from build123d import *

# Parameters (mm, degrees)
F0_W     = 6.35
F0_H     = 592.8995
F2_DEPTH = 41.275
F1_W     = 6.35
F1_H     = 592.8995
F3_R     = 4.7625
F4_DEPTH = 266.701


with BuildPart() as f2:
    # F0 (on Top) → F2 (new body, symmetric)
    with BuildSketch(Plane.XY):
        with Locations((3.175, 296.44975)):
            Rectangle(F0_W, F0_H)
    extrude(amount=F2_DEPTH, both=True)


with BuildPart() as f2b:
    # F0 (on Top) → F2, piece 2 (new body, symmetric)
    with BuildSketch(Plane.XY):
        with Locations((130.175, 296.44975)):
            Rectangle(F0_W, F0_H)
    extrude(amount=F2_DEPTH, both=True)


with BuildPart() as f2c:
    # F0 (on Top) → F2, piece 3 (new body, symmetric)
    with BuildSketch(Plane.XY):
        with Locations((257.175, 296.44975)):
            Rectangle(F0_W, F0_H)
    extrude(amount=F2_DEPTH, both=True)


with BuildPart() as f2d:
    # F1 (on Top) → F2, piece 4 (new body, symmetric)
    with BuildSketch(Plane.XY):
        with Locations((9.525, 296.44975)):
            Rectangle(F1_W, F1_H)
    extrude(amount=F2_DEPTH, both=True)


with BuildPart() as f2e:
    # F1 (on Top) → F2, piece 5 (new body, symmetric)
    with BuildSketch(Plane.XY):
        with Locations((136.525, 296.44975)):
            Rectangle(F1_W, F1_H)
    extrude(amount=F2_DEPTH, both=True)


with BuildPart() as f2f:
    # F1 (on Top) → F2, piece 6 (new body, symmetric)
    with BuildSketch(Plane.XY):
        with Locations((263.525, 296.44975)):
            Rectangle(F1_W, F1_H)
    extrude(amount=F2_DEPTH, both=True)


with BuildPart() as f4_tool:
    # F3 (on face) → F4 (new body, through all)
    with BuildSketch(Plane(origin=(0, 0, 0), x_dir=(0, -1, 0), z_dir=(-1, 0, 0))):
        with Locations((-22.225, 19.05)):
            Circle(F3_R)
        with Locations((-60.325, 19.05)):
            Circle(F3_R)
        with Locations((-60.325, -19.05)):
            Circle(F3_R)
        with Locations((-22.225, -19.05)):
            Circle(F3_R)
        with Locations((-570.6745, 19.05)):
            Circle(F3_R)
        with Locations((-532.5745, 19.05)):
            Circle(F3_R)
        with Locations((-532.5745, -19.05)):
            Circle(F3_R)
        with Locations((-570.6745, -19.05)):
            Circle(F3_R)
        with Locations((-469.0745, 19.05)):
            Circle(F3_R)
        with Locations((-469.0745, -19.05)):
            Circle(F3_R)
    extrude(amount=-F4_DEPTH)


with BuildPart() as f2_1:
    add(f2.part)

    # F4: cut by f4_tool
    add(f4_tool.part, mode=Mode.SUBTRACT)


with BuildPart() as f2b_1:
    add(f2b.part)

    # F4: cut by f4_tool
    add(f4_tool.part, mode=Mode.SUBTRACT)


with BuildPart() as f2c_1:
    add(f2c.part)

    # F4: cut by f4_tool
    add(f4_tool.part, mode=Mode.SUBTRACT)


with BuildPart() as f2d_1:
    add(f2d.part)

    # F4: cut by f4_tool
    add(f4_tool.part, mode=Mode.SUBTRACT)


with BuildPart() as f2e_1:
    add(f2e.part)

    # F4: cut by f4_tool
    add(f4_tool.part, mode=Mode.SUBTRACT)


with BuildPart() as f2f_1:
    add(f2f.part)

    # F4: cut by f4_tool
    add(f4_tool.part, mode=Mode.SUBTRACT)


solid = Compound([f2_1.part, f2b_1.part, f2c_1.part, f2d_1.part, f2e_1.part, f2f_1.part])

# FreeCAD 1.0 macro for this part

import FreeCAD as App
import Part
import Sketcher
from FreeCAD import Vector
Q = App.Units.Quantity


def add_polygon(sketch, points):
    """Adds a closed chain of lines whose ends are joined by coincident constraints."""
    first, n = sketch.GeometryCount, len(points)
    for a, b in zip(points, points[1:] + points[:1]):
        sketch.addGeometry(Part.LineSegment(App.Vector(*a, 0), App.Vector(*b, 0)), False)
    for i in range(n):
        sketch.addConstraint(Sketcher.Constraint("Coincident", first + i, 2, first + (i + 1) % n, 1))

doc = App.newDocument("Part")
body = doc.addObject("PartDesign::Body", "Body")

sketch1 = body.newObject("Sketcher::SketchObject", "Sketch")
sketch1.AttachmentSupport = (doc.getObject("XY_Plane"), [""])
sketch1.MapMode = "FlatFace"
add_polygon(sketch1, [(0, 593), (0, 0), (6, 0), (6, 593)])
sketch1.addConstraint([
    Sketcher.Constraint("Vertical", 0),
    Sketcher.Constraint("Horizontal", 1),
    Sketcher.Constraint("Vertical", 2),
    Sketcher.Constraint("Horizontal", 3),
    Sketcher.Constraint("Coincident", 0, 2, -1, 1),
    Sketcher.Constraint("DistanceX", 1, 1, 1, 2, Q("0.25 in")),
    Sketcher.Constraint("DistanceY", 0, 2, 0, 1, Q("23.3425 in")),
])
pad1 = body.newObject("PartDesign::Pad", "Pad")
pad1.Profile = sketch1
pad1.Length = Q("3.25 in")
pad1.Midplane = True
body2 = doc.addObject("PartDesign::Body", "Body001")

sketch2 = body2.newObject("Sketcher::SketchObject", "Sketch001")
sketch2.AttachmentSupport = (doc.getObject("XY_Plane001"), [""])
sketch2.MapMode = "FlatFace"
add_polygon(sketch2, [(127, 593), (127, 0), (133, 0), (133, 593)])
sketch2.addConstraint([
    Sketcher.Constraint("Vertical", 0),
    Sketcher.Constraint("Horizontal", 1),
    Sketcher.Constraint("Vertical", 2),
    Sketcher.Constraint("Horizontal", 3),
    Sketcher.Constraint("PointOnObject", 0, 2, -1),
    Sketcher.Constraint("DistanceX", -1, 1, 0, 2, Q("5 in")),
    Sketcher.Constraint("DistanceX", 1, 1, 1, 2, Q("0.25 in")),
    Sketcher.Constraint("DistanceY", 0, 2, 0, 1, Q("23.3425 in")),
])
pad2 = body2.newObject("PartDesign::Pad", "Pad001")
pad2.Profile = sketch2
pad2.Length = Q("3.25 in")
pad2.Midplane = True
body3 = doc.addObject("PartDesign::Body", "Body002")

sketch3 = body3.newObject("Sketcher::SketchObject", "Sketch002")
sketch3.AttachmentSupport = (doc.getObject("XY_Plane002"), [""])
sketch3.MapMode = "FlatFace"
add_polygon(sketch3, [(254, 593), (254, 0), (260, 0), (260, 593)])
sketch3.addConstraint([
    Sketcher.Constraint("Vertical", 0),
    Sketcher.Constraint("Horizontal", 1),
    Sketcher.Constraint("Vertical", 2),
    Sketcher.Constraint("Horizontal", 3),
    Sketcher.Constraint("PointOnObject", 0, 2, -1),
    Sketcher.Constraint("DistanceX", -1, 1, 0, 2, Q("10 in")),
    Sketcher.Constraint("DistanceX", 1, 1, 1, 2, Q("0.25 in")),
    Sketcher.Constraint("DistanceY", 0, 2, 0, 1, Q("23.3425 in")),
])
pad3 = body3.newObject("PartDesign::Pad", "Pad002")
pad3.Profile = sketch3
pad3.Length = Q("3.25 in")
pad3.Midplane = True
body4 = doc.addObject("PartDesign::Body", "Body003")

sketch4 = body4.newObject("Sketcher::SketchObject", "Sketch003")
sketch4.AttachmentSupport = (doc.getObject("XY_Plane003"), [""])
sketch4.MapMode = "FlatFace"
add_polygon(sketch4, [(6, 593), (6, 0), (13, 0), (13, 593)])
sketch4.addConstraint([
    Sketcher.Constraint("Vertical", 0),
    Sketcher.Constraint("Horizontal", 1),
    Sketcher.Constraint("Vertical", 2),
    Sketcher.Constraint("Horizontal", 3),
    Sketcher.Constraint("PointOnObject", 0, 2, -1),
    Sketcher.Constraint("DistanceX", 1, 1, 1, 2, Q("0.25 in")),
    Sketcher.Constraint("DistanceX", -1, 1, 1, 2, Q("0.5 in")),
    Sketcher.Constraint("DistanceY", 0, 2, 0, 1, Q("23.3425 in")),
])
pad4 = body4.newObject("PartDesign::Pad", "Pad003")
pad4.Profile = sketch4
pad4.Length = Q("3.25 in")
pad4.Midplane = True
body5 = doc.addObject("PartDesign::Body", "Body004")

sketch5 = body5.newObject("Sketcher::SketchObject", "Sketch004")
sketch5.AttachmentSupport = (doc.getObject("XY_Plane004"), [""])
sketch5.MapMode = "FlatFace"
add_polygon(sketch5, [(133, 593), (133, 0), (140, 0), (140, 593)])
sketch5.addConstraint([
    Sketcher.Constraint("Vertical", 0),
    Sketcher.Constraint("Horizontal", 1),
    Sketcher.Constraint("Vertical", 2),
    Sketcher.Constraint("Horizontal", 3),
    Sketcher.Constraint("PointOnObject", 0, 2, -1),
    Sketcher.Constraint("DistanceX", 1, 1, 1, 2, Q("0.25 in")),
    Sketcher.Constraint("DistanceX", -1, 1, 1, 2, Q("5.5 in")),
    Sketcher.Constraint("DistanceY", 0, 2, 0, 1, Q("23.3425 in")),
])
pad5 = body5.newObject("PartDesign::Pad", "Pad004")
pad5.Profile = sketch5
pad5.Length = Q("3.25 in")
pad5.Midplane = True
body6 = doc.addObject("PartDesign::Body", "Body005")

sketch6 = body6.newObject("Sketcher::SketchObject", "Sketch005")
sketch6.AttachmentSupport = (doc.getObject("XY_Plane005"), [""])
sketch6.MapMode = "FlatFace"
add_polygon(sketch6, [(260, 593), (260, 0), (267, 0), (267, 593)])
sketch6.addConstraint([
    Sketcher.Constraint("Vertical", 0),
    Sketcher.Constraint("Horizontal", 1),
    Sketcher.Constraint("Vertical", 2),
    Sketcher.Constraint("Horizontal", 3),
    Sketcher.Constraint("PointOnObject", 0, 2, -1),
    Sketcher.Constraint("DistanceX", 1, 1, 1, 2, Q("0.25 in")),
    Sketcher.Constraint("DistanceX", -1, 1, 1, 2, Q("10.5 in")),
    Sketcher.Constraint("DistanceY", 0, 2, 0, 1, Q("23.3425 in")),
])
pad6 = body6.newObject("PartDesign::Pad", "Pad005")
pad6.Profile = sketch6
pad6.Length = Q("3.25 in")
pad6.Midplane = True
body7 = doc.addObject("PartDesign::Body", "Body006")
body7.AllowCompound = True

sketch7 = body7.newObject("Sketcher::SketchObject", "Sketch006")
sketch7.AttachmentSupport = (doc.getObject("YZ_Plane006"), [""])
sketch7.MapMode = "FlatFace"
sketch7.addGeometry([
    Part.Circle(Vector(22.2, 19.1, 0), Vector(0, 0, 1), 4.8),
    Part.Circle(Vector(60.3, 19.1, 0), Vector(0, 0, 1), 4.8),
    Part.Circle(Vector(60.3, -19.1, 0), Vector(0, 0, 1), 4.8),
    Part.Circle(Vector(22.2, -19.1, 0), Vector(0, 0, 1), 4.8),
    Part.Circle(Vector(570.7, 19.1, 0), Vector(0, 0, 1), 4.8),
    Part.Circle(Vector(532.6, 19.1, 0), Vector(0, 0, 1), 4.8),
    Part.Circle(Vector(532.6, -19.1, 0), Vector(0, 0, 1), 4.8),
    Part.Circle(Vector(570.7, -19.1, 0), Vector(0, 0, 1), 4.8),
    Part.Circle(Vector(469.1, 19.1, 0), Vector(0, 0, 1), 4.8),
    Part.Circle(Vector(469.1, -19.1, 0), Vector(0, 0, 1), 4.8),
], False)
sketch7.addConstraint([
    Sketcher.Constraint("Equal", 0, 1),
    Sketcher.Constraint("Equal", 1, 2),
    Sketcher.Constraint("Equal", 2, 3),
    Sketcher.Constraint("Equal", 3, 4),
    Sketcher.Constraint("Equal", 4, 5),
    Sketcher.Constraint("Equal", 5, 6),
    Sketcher.Constraint("Equal", 6, 7),
    Sketcher.Constraint("Equal", 7, 8),
    Sketcher.Constraint("Equal", 8, 9),
    Sketcher.Constraint("Symmetric", 1, 3, 2, 3, -1),
    Sketcher.Constraint("Symmetric", 0, 3, 3, 3, -1),
    Sketcher.Constraint("Symmetric", 5, 3, 6, 3, -1),
    Sketcher.Constraint("Symmetric", 4, 3, 7, 3, -1),
    Sketcher.Constraint("Symmetric", 8, 3, 9, 3, -1),
    Sketcher.Constraint("Horizontal", 0, 3, 1, 3),
    Sketcher.Constraint("Horizontal", 1, 3, 4, 3),
    Sketcher.Constraint("Horizontal", 4, 3, 5, 3),
    Sketcher.Constraint("Horizontal", 5, 3, 8, 3),
    Sketcher.Constraint("Diameter", 0, Q("0.375 in")),
    Sketcher.Constraint("DistanceX", 8, 3, 4, 3, Q("4 in")),
    Sketcher.Constraint("DistanceX", 0, 3, 1, 3, Q("1.5 in")),
    Sketcher.Constraint("DistanceY", 2, 3, 1, 3, Q("1.5 in")),
    Sketcher.Constraint("DistanceX", 5, 3, 4, 3, Q("1.5 in")),
    Sketcher.Constraint("DistanceX", -1, 1, 0, 3, Q("0.875 in")),
    Sketcher.Constraint("DistanceX", -1, 1, 4, 3, Q("22.4675 in")),
])
pad7 = body7.newObject("PartDesign::Pad", "Pad006")
pad7.Profile = sketch7
pad7.Length = 266.701
doc.recompute()

body8 = doc.addObject("PartDesign::Body", "Body007")
body8.BaseFeature = body7
boolean = body.newObject("PartDesign::Boolean", "Boolean")
boolean.Type = "Cut"
boolean.addObjects([body8])
doc.recompute()

body9 = doc.addObject("PartDesign::Body", "Body008")
body9.BaseFeature = body7
boolean2 = body2.newObject("PartDesign::Boolean", "Boolean001")
boolean2.Type = "Cut"
boolean2.addObjects([body9])
doc.recompute()

body10 = doc.addObject("PartDesign::Body", "Body009")
body10.BaseFeature = body7
boolean3 = body3.newObject("PartDesign::Boolean", "Boolean002")
boolean3.Type = "Cut"
boolean3.addObjects([body10])
doc.recompute()

body11 = doc.addObject("PartDesign::Body", "Body010")
body11.BaseFeature = body7
boolean4 = body4.newObject("PartDesign::Boolean", "Boolean003")
boolean4.Type = "Cut"
boolean4.addObjects([body11])
doc.recompute()

body12 = doc.addObject("PartDesign::Body", "Body011")
body12.BaseFeature = body7
boolean5 = body5.newObject("PartDesign::Boolean", "Boolean004")
boolean5.Type = "Cut"
boolean5.addObjects([body12])
doc.recompute()

boolean6 = body6.newObject("PartDesign::Boolean", "Boolean005")
boolean6.Type = "Cut"
boolean6.addObjects([body7])

doc.recompute()
